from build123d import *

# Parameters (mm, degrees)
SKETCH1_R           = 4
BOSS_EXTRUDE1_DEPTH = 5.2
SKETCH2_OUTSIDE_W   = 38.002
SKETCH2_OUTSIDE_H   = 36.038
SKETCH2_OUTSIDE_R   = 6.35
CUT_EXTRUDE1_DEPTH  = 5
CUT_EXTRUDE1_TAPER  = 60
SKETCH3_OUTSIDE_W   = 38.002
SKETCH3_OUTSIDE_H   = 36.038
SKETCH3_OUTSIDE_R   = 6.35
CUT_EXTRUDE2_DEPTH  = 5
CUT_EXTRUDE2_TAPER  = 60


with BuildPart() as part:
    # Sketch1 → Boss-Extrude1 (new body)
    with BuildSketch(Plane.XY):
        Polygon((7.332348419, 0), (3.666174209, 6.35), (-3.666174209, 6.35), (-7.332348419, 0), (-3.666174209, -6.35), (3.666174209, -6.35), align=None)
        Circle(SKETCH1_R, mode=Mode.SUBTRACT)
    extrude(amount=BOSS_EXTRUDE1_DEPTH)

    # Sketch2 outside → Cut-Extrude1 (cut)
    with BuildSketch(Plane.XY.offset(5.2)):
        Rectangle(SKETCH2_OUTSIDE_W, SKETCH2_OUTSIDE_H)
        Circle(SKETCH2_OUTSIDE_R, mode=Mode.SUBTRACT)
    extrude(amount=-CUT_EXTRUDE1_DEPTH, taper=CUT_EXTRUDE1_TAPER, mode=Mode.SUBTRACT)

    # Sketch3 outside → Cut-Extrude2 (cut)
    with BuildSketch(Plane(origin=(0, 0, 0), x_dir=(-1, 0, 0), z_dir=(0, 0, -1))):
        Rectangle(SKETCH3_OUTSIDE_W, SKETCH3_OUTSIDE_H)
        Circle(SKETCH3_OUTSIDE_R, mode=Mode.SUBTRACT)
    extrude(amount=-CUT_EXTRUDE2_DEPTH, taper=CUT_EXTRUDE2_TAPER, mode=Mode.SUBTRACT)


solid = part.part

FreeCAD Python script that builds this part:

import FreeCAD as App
import Part
import Sketcher
from FreeCAD import Vector
Q = App.Units.Quantity


def add_polygon(sketch, points):
    """Adds a closed chain of lines whose ends are joined by coincident constraints."""
    first, n = sketch.GeometryCount, len(points)
    for a, b in zip(points, points[1:] + points[:1]):
        sketch.addGeometry(Part.LineSegment(App.Vector(*a, 0), App.Vector(*b, 0)), False)
    for i in range(n):
        sketch.addConstraint(Sketcher.Constraint("Coincident", first + i, 2, first + (i + 1) % n, 1))

doc = App.newDocument("Part")
params = doc.addObject("Spreadsheet::Sheet", "Params")
for row, (alias, value) in enumerate([
    ("sketch1_diameter", "8 mm"),
    ("pad1_length", "5.2 mm"),
    ("sketch2_diameter", "12.7 mm"),
    ("pocket1_length", "5 mm"),
    ("pocket1_taper", "60 deg"),
    ("sketch3_diameter", "12.7 mm"),
    ("pocket2_length", "5 mm"),
    ("pocket2_taper", "60 deg"),
], start=1):
    params.set(f"A{row}", alias)
    params.set(f"B{row}", "=" + value)
    params.setAlias(f"B{row}", alias)

body = doc.addObject("PartDesign::Body", "Body")

sketch1 = body.newObject("Sketcher::SketchObject", "Sketch")
sketch1.AttachmentSupport = (doc.getObject("XY_Plane"), [""])
sketch1.MapMode = "FlatFace"
add_polygon(sketch1, [(7.3, 0), (3.7, 6.3), (-3.7, 6.3), (-7.3, 0), (-3.7, -6.3), (3.7, -6.3)])
sketch1.addGeometry(Part.Circle(Vector(0, 0, 0), Vector(0, 0, 1), 4), False)
sketch1.addConstraint([
    Sketcher.Constraint("Horizontal", 1),
    Sketcher.Constraint("Horizontal", 4),
    Sketcher.Constraint("Coincident", 6, 3, -1, 1),
    Sketcher.Constraint("Symmetric", 0, 2, 3, 2, -1, 1),
    Sketcher.Constraint("Symmetric", 2, 2, 5, 2, -1, 1),
    Sketcher.Constraint("PointOnObject", 2, 2, -1),
    Sketcher.Constraint("Parallel", 2, 5),
    Sketcher.Constraint("Vertical", 1, 2, 3, 2),
    Sketcher.Constraint("Diameter", 6, Q("8 mm")),
    Sketcher.Constraint("Angle", 0, Q("120 deg")),
    Sketcher.Constraint("DistanceY", 3, 2, 1, 2, Q("12.7 mm")),
    Sketcher.Constraint("DistanceX", 1, 2, 1, 1, Q("7.332348 mm")),
])
sketch1.setExpression("Constraints[14]", "Params.sketch1_diameter")
pad1 = body.newObject("PartDesign::Pad", "Pad")
pad1.Profile = sketch1
pad1.setExpression("Length", "Params.pad1_length")

sketch2 = body.newObject("Sketcher::SketchObject", "Sketch001")
sketch2.AttachmentSupport = (doc.getObject("XY_Plane"), [""])
sketch2.MapMode = "FlatFace"
sketch2.AttachmentOffset = App.Placement(Vector(0, 0, 5.2), App.Rotation())
add_polygon(sketch2, [(-19, 18), (-19, -18), (19, -18), (19, 18)])
sketch2.addGeometry(Part.Circle(Vector(0, 0, 0), Vector(0, 0, 1), 6), False)
sketch2.addConstraint([
    Sketcher.Constraint("Vertical", 0),
    Sketcher.Constraint("Horizontal", 1),
    Sketcher.Constraint("Vertical", 2),
    Sketcher.Constraint("Horizontal", 3),
    Sketcher.Constraint("Coincident", 4, 3, -1, 1),
    Sketcher.Constraint("Symmetric", 0, 2, 2, 2, -1, 1),
    Sketcher.Constraint("Diameter", 4, Q("12.7 mm")),
    Sketcher.Constraint("DistanceX", 1, 1, 1, 2, Q("38.002 mm")),
    Sketcher.Constraint("DistanceY", 0, 2, 0, 1, Q("36.038 mm")),
])
sketch2.setExpression("Constraints[10]", "Params.sketch2_diameter")
pocket1 = body.newObject("PartDesign::Pocket", "Pocket")
pocket1.Profile = sketch2
pocket1.setExpression("Length", "Params.pocket1_length")
pocket1.setExpression("TaperAngle", "Params.pocket1_taper")

sketch3 = body.newObject("Sketcher::SketchObject", "Sketch002")
sketch3.AttachmentSupport = (doc.getObject("XY_Plane"), [""])
sketch3.MapMode = "FlatFace"
add_polygon(sketch3, [(19, 18), (19, -18), (-19, -18), (-19, 18)])
sketch3.addGeometry(Part.Circle(Vector(0, 0, 0), Vector(0, 0, 1), 6), False)
sketch3.addConstraint([
    Sketcher.Constraint("Vertical", 0),
    Sketcher.Constraint("Horizontal", 1),
    Sketcher.Constraint("Vertical", 2),
    Sketcher.Constraint("Horizontal", 3),
    Sketcher.Constraint("Coincident", 4, 3, -1, 1),
    Sketcher.Constraint("Symmetric", 0, 2, 2, 2, -1, 1),
    Sketcher.Constraint("Diameter", 4, Q("12.7 mm")),
    Sketcher.Constraint("DistanceX", 1, 2, 1, 1, Q("38.002 mm")),
    Sketcher.Constraint("DistanceY", 0, 2, 0, 1, Q("36.038 mm")),
])
sketch3.setExpression("Constraints[10]", "Params.sketch3_diameter")
pocket2 = body.newObject("PartDesign::Pocket", "Pocket001")
pocket2.Profile = sketch3
pocket2.setExpression("Length", "Params.pocket2_length")
pocket2.Reversed = True
pocket2.setExpression("TaperAngle", "Params.pocket2_taper")

doc.recompute()
